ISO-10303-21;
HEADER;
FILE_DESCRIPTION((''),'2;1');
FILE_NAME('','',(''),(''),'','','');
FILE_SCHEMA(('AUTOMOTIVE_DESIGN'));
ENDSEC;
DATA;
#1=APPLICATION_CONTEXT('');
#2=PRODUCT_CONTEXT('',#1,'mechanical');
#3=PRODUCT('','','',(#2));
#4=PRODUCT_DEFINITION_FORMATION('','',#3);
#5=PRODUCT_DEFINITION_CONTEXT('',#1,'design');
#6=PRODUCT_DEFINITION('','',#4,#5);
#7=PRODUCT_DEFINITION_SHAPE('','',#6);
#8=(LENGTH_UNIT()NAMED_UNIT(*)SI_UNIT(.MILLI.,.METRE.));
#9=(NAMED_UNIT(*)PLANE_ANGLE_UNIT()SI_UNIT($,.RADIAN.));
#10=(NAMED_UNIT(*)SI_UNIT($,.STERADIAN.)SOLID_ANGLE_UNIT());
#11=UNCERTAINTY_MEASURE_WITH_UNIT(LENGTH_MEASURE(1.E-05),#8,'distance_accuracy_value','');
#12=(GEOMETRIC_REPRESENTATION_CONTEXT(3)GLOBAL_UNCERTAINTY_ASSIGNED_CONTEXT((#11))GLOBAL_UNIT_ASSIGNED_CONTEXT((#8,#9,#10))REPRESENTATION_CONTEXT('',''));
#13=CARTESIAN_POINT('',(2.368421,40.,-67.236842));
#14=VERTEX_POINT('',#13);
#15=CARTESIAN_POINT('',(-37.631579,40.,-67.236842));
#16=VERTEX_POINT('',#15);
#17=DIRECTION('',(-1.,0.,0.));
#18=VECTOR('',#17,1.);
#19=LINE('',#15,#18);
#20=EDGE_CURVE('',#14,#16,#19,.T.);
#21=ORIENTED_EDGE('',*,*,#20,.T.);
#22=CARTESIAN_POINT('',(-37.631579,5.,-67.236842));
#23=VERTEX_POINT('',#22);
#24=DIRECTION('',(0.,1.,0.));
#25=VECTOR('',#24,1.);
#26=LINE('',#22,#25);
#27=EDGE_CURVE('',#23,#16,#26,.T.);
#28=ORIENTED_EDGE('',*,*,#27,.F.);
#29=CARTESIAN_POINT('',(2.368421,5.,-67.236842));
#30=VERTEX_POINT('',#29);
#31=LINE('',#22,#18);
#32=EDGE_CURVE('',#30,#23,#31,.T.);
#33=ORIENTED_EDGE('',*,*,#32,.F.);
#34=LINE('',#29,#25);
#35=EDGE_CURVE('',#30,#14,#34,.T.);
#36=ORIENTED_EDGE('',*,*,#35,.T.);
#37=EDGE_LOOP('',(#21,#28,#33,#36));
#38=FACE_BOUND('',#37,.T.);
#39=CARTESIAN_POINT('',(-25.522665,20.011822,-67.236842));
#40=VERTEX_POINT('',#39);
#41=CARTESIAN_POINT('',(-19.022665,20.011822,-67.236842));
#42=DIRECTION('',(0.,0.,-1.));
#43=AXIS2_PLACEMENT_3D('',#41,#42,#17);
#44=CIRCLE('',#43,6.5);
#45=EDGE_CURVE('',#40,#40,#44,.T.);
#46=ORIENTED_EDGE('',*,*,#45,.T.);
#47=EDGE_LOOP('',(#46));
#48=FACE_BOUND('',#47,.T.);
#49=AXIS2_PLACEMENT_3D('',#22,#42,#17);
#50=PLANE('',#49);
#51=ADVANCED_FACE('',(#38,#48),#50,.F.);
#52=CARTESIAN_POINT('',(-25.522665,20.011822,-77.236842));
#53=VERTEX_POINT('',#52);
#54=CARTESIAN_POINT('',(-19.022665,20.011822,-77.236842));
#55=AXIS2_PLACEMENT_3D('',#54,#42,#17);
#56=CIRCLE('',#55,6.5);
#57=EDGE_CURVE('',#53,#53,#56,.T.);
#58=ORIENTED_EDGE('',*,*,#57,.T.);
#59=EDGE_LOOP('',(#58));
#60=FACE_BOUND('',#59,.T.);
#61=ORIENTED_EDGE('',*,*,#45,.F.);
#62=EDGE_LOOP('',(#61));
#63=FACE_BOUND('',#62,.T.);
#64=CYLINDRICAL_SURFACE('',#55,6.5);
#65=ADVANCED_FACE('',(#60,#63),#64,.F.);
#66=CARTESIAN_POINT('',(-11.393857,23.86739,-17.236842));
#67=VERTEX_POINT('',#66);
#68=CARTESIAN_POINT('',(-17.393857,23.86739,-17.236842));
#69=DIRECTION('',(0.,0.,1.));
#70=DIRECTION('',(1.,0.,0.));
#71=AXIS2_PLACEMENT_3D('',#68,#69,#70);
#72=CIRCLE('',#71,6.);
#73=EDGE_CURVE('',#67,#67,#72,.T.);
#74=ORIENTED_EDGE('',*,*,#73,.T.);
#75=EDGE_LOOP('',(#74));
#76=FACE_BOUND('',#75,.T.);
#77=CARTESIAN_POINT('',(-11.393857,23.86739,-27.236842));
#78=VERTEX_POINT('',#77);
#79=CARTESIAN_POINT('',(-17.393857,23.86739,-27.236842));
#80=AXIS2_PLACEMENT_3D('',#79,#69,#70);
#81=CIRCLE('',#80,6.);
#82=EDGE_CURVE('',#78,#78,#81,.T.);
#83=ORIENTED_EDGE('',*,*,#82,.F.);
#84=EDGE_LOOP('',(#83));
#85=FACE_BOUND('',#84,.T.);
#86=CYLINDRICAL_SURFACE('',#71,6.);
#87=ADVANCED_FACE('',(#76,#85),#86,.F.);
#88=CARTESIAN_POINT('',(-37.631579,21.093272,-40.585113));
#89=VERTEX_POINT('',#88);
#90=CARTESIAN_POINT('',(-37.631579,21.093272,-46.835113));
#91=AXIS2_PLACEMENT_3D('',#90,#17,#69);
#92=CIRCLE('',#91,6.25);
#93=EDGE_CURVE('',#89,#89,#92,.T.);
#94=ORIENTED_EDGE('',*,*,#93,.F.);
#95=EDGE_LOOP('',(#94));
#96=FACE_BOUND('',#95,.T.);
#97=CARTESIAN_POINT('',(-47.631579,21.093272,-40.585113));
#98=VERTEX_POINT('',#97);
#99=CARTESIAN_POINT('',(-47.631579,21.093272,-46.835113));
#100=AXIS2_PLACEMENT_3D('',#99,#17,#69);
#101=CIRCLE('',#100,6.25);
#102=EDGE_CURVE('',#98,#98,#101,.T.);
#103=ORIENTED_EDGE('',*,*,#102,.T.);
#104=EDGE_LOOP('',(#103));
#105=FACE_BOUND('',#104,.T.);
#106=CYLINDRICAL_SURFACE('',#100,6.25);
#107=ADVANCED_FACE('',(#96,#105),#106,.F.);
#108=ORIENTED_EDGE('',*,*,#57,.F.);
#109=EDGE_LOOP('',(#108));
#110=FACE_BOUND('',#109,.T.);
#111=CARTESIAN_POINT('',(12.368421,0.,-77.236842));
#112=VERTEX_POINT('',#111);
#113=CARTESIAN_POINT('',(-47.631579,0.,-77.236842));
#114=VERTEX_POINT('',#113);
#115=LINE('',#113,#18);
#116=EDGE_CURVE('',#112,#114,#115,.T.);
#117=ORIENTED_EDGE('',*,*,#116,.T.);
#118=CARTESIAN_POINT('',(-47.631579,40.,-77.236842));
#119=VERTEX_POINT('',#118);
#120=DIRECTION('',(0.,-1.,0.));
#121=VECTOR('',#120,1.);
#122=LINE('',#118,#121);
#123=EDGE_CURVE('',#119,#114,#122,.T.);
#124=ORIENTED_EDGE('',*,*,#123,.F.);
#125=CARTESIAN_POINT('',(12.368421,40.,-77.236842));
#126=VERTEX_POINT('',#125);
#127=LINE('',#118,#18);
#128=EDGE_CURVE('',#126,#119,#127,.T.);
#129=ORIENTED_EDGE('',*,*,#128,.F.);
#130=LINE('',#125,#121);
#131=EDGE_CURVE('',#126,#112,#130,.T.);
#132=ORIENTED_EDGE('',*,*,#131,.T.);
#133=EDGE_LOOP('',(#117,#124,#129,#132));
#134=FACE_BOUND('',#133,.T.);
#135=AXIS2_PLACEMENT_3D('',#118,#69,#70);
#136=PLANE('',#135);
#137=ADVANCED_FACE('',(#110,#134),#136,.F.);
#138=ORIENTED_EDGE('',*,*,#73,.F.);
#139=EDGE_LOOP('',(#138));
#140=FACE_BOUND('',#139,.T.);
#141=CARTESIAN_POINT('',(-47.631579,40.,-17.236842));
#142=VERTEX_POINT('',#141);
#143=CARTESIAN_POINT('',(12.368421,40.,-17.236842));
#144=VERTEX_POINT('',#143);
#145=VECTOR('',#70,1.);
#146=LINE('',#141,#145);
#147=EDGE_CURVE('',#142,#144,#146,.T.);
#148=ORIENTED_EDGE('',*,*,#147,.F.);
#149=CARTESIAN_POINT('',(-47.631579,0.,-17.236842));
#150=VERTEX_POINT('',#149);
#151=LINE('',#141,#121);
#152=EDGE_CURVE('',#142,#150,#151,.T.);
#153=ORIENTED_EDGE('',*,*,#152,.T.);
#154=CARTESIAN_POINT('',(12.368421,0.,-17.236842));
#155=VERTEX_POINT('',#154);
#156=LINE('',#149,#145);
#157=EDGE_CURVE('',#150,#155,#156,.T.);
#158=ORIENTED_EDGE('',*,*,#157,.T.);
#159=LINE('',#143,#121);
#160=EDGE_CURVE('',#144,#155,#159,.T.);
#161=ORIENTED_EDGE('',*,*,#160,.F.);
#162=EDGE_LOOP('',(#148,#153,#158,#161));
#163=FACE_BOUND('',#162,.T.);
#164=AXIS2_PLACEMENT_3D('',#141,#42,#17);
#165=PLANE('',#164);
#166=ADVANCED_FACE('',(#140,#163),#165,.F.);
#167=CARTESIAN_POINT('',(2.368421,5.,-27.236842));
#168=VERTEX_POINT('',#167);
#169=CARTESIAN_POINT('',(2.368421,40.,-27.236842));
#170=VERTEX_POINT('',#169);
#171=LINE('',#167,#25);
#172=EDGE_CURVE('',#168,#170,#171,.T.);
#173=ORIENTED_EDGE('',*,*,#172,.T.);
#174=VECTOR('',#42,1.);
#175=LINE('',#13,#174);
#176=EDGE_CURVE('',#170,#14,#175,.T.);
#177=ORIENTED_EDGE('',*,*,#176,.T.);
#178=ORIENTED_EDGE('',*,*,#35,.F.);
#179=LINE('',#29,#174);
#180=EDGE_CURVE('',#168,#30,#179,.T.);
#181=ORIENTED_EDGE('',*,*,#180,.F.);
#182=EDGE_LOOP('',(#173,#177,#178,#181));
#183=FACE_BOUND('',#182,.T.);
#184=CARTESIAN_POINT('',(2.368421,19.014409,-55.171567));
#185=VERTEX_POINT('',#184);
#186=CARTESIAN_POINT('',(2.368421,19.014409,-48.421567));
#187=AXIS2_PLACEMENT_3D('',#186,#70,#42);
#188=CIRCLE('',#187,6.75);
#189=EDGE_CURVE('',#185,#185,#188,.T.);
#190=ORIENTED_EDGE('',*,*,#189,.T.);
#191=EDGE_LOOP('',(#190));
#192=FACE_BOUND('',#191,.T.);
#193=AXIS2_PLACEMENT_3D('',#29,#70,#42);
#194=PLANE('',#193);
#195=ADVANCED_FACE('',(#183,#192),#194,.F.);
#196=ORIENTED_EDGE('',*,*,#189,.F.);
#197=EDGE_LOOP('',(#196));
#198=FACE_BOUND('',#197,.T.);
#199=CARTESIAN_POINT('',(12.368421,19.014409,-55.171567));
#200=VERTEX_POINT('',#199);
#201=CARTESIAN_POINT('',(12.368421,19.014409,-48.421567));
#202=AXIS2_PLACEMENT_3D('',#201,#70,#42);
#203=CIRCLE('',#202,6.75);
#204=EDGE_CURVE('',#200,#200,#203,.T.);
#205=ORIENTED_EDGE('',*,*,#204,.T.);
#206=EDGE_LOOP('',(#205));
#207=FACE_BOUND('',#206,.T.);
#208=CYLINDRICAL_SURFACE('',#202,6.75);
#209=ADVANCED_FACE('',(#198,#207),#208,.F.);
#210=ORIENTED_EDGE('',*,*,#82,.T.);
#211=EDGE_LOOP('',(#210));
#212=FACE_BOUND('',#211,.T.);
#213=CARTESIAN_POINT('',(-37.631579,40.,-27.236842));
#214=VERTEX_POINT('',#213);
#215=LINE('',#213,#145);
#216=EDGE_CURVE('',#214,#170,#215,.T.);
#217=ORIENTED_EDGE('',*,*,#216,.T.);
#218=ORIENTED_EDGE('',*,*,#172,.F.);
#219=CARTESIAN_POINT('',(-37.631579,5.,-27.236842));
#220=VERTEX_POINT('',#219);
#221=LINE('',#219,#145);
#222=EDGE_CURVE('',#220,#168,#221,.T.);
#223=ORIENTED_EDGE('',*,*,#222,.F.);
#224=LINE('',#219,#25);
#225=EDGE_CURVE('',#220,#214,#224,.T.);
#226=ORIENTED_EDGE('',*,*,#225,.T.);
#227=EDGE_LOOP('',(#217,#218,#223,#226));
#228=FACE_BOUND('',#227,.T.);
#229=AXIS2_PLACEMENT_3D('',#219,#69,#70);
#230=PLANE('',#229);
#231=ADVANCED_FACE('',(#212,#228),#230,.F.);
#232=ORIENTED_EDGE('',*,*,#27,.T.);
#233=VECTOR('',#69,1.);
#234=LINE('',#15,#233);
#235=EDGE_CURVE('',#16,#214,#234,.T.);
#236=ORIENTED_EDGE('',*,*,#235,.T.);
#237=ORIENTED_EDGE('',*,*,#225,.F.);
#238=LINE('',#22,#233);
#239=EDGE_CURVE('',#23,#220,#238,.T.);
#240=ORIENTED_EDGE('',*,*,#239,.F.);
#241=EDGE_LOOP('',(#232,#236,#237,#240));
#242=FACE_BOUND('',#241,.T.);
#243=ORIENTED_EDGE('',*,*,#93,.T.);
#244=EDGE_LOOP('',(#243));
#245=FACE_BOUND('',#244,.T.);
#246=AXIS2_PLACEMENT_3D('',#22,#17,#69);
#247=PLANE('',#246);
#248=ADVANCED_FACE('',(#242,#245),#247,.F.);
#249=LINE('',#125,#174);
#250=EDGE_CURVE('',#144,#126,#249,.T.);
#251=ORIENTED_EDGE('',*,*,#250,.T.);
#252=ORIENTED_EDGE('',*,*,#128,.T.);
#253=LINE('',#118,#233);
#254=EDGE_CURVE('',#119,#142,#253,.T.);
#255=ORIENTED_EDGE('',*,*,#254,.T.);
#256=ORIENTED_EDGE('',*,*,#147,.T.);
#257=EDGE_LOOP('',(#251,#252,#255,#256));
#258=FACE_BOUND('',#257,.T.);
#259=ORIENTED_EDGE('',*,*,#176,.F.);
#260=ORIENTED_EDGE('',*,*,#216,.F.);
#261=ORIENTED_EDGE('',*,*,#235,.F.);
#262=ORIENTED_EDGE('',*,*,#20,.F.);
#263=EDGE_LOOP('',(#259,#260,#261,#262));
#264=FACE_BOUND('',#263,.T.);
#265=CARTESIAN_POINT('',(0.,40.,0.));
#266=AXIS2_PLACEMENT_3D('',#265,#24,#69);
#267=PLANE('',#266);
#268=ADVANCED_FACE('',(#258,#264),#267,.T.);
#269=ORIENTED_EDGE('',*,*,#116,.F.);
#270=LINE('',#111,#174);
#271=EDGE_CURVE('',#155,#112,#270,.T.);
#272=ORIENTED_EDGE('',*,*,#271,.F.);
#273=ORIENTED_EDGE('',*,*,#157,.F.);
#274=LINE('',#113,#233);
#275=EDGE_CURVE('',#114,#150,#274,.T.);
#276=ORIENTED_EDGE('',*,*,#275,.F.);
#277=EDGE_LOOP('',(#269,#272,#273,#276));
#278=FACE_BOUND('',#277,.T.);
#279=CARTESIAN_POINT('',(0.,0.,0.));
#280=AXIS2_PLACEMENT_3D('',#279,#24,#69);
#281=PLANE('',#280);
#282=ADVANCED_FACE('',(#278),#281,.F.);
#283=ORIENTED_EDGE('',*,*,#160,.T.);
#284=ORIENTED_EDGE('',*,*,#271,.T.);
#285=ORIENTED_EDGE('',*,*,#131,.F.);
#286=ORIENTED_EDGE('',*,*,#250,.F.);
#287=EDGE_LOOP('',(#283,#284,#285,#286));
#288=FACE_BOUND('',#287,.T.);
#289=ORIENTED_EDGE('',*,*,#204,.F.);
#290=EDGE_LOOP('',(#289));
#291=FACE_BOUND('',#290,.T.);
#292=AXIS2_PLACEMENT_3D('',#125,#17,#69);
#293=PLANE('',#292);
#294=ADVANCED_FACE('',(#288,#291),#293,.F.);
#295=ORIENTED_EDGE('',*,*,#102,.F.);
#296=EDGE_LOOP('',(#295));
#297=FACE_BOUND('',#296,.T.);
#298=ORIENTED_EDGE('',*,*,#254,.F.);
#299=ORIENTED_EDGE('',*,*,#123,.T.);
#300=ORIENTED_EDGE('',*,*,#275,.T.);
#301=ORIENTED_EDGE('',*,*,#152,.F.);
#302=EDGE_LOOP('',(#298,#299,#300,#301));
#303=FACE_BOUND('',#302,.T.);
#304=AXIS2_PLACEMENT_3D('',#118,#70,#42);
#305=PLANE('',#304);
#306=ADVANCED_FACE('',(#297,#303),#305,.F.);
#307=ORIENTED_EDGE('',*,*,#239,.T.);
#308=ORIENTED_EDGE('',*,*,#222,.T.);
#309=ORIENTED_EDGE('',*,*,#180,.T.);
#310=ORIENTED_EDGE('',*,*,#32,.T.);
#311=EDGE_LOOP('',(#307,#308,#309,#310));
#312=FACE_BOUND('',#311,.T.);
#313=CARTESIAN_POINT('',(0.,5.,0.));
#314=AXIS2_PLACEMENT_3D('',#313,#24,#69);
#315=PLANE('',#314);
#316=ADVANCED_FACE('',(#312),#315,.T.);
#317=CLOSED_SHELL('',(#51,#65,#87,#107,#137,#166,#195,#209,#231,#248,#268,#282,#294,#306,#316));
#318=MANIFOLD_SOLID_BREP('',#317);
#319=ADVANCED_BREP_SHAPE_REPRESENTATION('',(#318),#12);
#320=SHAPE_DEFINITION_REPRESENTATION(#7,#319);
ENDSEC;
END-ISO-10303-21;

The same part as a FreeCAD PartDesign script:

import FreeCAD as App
import Part
import Sketcher
from FreeCAD import Vector
Q = App.Units.Quantity

doc = App.newDocument("Part")
body = doc.addObject("PartDesign::Body", "Body")

# Sketch on XZ plane
sketch1 = body.newObject("Sketcher::SketchObject", "Sketch")
sketch1.AttachmentSupport = (doc.getObject("XZ_Plane"), [""])
sketch1.MapMode = "FlatFace"
sketch1.addGeometry([
    Part.LineSegment(Vector(-48, -77, 0), Vector(-48, -17, 0)),
    Part.LineSegment(Vector(-48, -17, 0), Vector(12, -17, 0)),
    Part.LineSegment(Vector(12, -17, 0), Vector(12, -77, 0)),
    Part.LineSegment(Vector(12, -77, 0), Vector(-48, -77, 0)),
], False)
sketch1.addConstraint([
    Sketcher.Constraint("Coincident", 0, 2, 1, 1),
    Sketcher.Constraint("Coincident", 1, 2, 2, 1),
    Sketcher.Constraint("Coincident", 2, 2, 3, 1),
    Sketcher.Constraint("Coincident", 3, 2, 0, 1),
    Sketcher.Constraint("Vertical", 0),
    Sketcher.Constraint("Horizontal", 1),
    Sketcher.Constraint("Vertical", 2),
    Sketcher.Constraint("Horizontal", 3),
    Sketcher.Constraint("Equal", 3, 0),
    Sketcher.Constraint("DistanceX", 1, 1, 1, 2, Q("60 mm")),
    Sketcher.Constraint("DistanceX", 0, 2, -1, 1, Q("47.631579 mm")),
    Sketcher.Constraint("DistanceY", 0, 2, -1, 1, Q("17.236842 mm")),
])
pad1 = body.newObject("PartDesign::Pad", "Pad")
pad1.Profile = sketch1
pad1.Length = 40
pad1.Reversed = True

# Sketch on XZ plane
sketch2 = body.newObject("Sketcher::SketchObject", "Sketch001")
sketch2.AttachmentSupport = (doc.getObject("XZ_Plane"), [""])
sketch2.MapMode = "FlatFace"
sketch2.AttachmentOffset = App.Placement(Vector(0, 0, -40), App.Rotation())
sketch2.addGeometry([
    Part.LineSegment(Vector(-38, -67, 0), Vector(-38, -27, 0)),
    Part.LineSegment(Vector(-38, -27, 0), Vector(2, -27, 0)),
    Part.LineSegment(Vector(2, -27, 0), Vector(2, -67, 0)),
    Part.LineSegment(Vector(2, -67, 0), Vector(-38, -67, 0)),
], False)
sketch2.addConstraint([
    Sketcher.Constraint("Coincident", 0, 2, 1, 1),
    Sketcher.Constraint("Coincident", 1, 2, 2, 1),
    Sketcher.Constraint("Coincident", 2, 2, 3, 1),
    Sketcher.Constraint("Coincident", 3, 2, 0, 1),
    Sketcher.Constraint("Vertical", 0),
    Sketcher.Constraint("Horizontal", 1),
    Sketcher.Constraint("Vertical", 2),
    Sketcher.Constraint("Horizontal", 3),
    Sketcher.Constraint("Equal", 3, 0),
    Sketcher.Constraint("DistanceX", 1, 1, 1, 2, Q("40 mm")),
    Sketcher.Constraint("DistanceX", 0, 2, -1, 1, Q("37.631579 mm")),
    Sketcher.Constraint("DistanceY", 0, 2, -1, 1, Q("27.236842 mm")),
])
pocket1 = body.newObject("PartDesign::Pocket", "Pocket")
pocket1.Profile = sketch2
pocket1.Length = 35
pocket1.Reversed = True

# Sketch on XY plane
sketch3 = body.newObject("Sketcher::SketchObject", "Sketch002")
sketch3.AttachmentSupport = (doc.getObject("XY_Plane"), [""])
sketch3.MapMode = "FlatFace"
sketch3.AttachmentOffset = App.Placement(Vector(0, 0, -17.236842), App.Rotation())
sketch3.addGeometry(Part.Circle(Vector(-17, 24, 0), Vector(0, 0, 1), 6), False)
sketch3.addConstraint([
    Sketcher.Constraint("Diameter", 0, Q("12 mm")),
    Sketcher.Constraint("DistanceY", -1, 1, 0, 3, Q("23.86739 mm")),
    Sketcher.Constraint("DistanceX", 0, 3, -1, 1, Q("17.393857 mm")),
])
doc.recompute()
hole = body.newObject("PartDesign::Hole", "Hole")
hole.Profile = sketch3
hole.ThreadType = "None"
hole.Diameter = 12
hole.DepthType = "Dimension"
hole.Depth = 10
hole.DrillPoint = "Flat"

# Sketch on YZ plane
sketch4 = body.newObject("Sketcher::SketchObject", "Sketch003")
sketch4.AttachmentSupport = (doc.getObject("YZ_Plane"), [""])
sketch4.MapMode = "FlatFace"
sketch4.AttachmentOffset = App.Placement(Vector(0, 0, 12.368421), App.Rotation())
sketch4.addGeometry(Part.Circle(Vector(19, -48, 0), Vector(0, 0, 1), 7), False)
sketch4.addConstraint([
    Sketcher.Constraint("Diameter", 0, Q("13.5 mm")),
    Sketcher.Constraint("DistanceX", -1, 1, 0, 3, Q("19.014409 mm")),
    Sketcher.Constraint("DistanceY", 0, 3, -1, 1, Q("48.421567 mm")),
])
doc.recompute()
hole2 = body.newObject("PartDesign::Hole", "Hole001")
hole2.Profile = sketch4
hole2.ThreadType = "None"
hole2.Diameter = 13.5
hole2.DepthType = "Dimension"
hole2.Depth = 10
hole2.DrillPoint = "Flat"

# Sketch on YZ plane
sketch5 = body.newObject("Sketcher::SketchObject", "Sketch004")
sketch5.AttachmentSupport = (doc.getObject("YZ_Plane"), [""])
sketch5.MapMode = "FlatFace"
sketch5.AttachmentOffset = App.Placement(Vector(0, 0, -47.631579), App.Rotation())
sketch5.addGeometry(Part.Circle(Vector(21, -47, 0), Vector(0, 0, 1), 6), False)
sketch5.addConstraint([
    Sketcher.Constraint("Diameter", 0, Q("12.5 mm")),
    Sketcher.Constraint("DistanceX", -1, 1, 0, 3, Q("21.093272 mm")),
    Sketcher.Constraint("DistanceY", 0, 3, -1, 1, Q("46.835113 mm")),
])
doc.recompute()
hole3 = body.newObject("PartDesign::Hole", "Hole002")
hole3.Profile = sketch5
hole3.ThreadType = "None"
hole3.Diameter = 12.5
hole3.DepthType = "Dimension"
hole3.Depth = 10
hole3.DrillPoint = "Flat"
hole3.Reversed = True

# Sketch on XY plane
sketch6 = body.newObject("Sketcher::SketchObject", "Sketch005")
sketch6.AttachmentSupport = (doc.getObject("XY_Plane"), [""])
sketch6.MapMode = "FlatFace"
sketch6.AttachmentOffset = App.Placement(Vector(0, 0, -77.236842), App.Rotation())
sketch6.addGeometry(Part.Circle(Vector(-19, 20, 0), Vector(0, 0, 1), 6), False)
sketch6.addConstraint([
    Sketcher.Constraint("Diameter", 0, Q("13 mm")),
    Sketcher.Constraint("DistanceX", 0, 3, -1, 1, Q("19.022665 mm")),
    Sketcher.Constraint("DistanceY", -1, 1, 0, 3, Q("20.011822 mm")),
])
doc.recompute()
hole4 = body.newObject("PartDesign::Hole", "Hole003")
hole4.Profile = sketch6
hole4.ThreadType = "None"
hole4.Diameter = 13
hole4.DepthType = "Dimension"
hole4.Depth = 10
hole4.DrillPoint = "Flat"
hole4.Reversed = True

doc.recompute()
